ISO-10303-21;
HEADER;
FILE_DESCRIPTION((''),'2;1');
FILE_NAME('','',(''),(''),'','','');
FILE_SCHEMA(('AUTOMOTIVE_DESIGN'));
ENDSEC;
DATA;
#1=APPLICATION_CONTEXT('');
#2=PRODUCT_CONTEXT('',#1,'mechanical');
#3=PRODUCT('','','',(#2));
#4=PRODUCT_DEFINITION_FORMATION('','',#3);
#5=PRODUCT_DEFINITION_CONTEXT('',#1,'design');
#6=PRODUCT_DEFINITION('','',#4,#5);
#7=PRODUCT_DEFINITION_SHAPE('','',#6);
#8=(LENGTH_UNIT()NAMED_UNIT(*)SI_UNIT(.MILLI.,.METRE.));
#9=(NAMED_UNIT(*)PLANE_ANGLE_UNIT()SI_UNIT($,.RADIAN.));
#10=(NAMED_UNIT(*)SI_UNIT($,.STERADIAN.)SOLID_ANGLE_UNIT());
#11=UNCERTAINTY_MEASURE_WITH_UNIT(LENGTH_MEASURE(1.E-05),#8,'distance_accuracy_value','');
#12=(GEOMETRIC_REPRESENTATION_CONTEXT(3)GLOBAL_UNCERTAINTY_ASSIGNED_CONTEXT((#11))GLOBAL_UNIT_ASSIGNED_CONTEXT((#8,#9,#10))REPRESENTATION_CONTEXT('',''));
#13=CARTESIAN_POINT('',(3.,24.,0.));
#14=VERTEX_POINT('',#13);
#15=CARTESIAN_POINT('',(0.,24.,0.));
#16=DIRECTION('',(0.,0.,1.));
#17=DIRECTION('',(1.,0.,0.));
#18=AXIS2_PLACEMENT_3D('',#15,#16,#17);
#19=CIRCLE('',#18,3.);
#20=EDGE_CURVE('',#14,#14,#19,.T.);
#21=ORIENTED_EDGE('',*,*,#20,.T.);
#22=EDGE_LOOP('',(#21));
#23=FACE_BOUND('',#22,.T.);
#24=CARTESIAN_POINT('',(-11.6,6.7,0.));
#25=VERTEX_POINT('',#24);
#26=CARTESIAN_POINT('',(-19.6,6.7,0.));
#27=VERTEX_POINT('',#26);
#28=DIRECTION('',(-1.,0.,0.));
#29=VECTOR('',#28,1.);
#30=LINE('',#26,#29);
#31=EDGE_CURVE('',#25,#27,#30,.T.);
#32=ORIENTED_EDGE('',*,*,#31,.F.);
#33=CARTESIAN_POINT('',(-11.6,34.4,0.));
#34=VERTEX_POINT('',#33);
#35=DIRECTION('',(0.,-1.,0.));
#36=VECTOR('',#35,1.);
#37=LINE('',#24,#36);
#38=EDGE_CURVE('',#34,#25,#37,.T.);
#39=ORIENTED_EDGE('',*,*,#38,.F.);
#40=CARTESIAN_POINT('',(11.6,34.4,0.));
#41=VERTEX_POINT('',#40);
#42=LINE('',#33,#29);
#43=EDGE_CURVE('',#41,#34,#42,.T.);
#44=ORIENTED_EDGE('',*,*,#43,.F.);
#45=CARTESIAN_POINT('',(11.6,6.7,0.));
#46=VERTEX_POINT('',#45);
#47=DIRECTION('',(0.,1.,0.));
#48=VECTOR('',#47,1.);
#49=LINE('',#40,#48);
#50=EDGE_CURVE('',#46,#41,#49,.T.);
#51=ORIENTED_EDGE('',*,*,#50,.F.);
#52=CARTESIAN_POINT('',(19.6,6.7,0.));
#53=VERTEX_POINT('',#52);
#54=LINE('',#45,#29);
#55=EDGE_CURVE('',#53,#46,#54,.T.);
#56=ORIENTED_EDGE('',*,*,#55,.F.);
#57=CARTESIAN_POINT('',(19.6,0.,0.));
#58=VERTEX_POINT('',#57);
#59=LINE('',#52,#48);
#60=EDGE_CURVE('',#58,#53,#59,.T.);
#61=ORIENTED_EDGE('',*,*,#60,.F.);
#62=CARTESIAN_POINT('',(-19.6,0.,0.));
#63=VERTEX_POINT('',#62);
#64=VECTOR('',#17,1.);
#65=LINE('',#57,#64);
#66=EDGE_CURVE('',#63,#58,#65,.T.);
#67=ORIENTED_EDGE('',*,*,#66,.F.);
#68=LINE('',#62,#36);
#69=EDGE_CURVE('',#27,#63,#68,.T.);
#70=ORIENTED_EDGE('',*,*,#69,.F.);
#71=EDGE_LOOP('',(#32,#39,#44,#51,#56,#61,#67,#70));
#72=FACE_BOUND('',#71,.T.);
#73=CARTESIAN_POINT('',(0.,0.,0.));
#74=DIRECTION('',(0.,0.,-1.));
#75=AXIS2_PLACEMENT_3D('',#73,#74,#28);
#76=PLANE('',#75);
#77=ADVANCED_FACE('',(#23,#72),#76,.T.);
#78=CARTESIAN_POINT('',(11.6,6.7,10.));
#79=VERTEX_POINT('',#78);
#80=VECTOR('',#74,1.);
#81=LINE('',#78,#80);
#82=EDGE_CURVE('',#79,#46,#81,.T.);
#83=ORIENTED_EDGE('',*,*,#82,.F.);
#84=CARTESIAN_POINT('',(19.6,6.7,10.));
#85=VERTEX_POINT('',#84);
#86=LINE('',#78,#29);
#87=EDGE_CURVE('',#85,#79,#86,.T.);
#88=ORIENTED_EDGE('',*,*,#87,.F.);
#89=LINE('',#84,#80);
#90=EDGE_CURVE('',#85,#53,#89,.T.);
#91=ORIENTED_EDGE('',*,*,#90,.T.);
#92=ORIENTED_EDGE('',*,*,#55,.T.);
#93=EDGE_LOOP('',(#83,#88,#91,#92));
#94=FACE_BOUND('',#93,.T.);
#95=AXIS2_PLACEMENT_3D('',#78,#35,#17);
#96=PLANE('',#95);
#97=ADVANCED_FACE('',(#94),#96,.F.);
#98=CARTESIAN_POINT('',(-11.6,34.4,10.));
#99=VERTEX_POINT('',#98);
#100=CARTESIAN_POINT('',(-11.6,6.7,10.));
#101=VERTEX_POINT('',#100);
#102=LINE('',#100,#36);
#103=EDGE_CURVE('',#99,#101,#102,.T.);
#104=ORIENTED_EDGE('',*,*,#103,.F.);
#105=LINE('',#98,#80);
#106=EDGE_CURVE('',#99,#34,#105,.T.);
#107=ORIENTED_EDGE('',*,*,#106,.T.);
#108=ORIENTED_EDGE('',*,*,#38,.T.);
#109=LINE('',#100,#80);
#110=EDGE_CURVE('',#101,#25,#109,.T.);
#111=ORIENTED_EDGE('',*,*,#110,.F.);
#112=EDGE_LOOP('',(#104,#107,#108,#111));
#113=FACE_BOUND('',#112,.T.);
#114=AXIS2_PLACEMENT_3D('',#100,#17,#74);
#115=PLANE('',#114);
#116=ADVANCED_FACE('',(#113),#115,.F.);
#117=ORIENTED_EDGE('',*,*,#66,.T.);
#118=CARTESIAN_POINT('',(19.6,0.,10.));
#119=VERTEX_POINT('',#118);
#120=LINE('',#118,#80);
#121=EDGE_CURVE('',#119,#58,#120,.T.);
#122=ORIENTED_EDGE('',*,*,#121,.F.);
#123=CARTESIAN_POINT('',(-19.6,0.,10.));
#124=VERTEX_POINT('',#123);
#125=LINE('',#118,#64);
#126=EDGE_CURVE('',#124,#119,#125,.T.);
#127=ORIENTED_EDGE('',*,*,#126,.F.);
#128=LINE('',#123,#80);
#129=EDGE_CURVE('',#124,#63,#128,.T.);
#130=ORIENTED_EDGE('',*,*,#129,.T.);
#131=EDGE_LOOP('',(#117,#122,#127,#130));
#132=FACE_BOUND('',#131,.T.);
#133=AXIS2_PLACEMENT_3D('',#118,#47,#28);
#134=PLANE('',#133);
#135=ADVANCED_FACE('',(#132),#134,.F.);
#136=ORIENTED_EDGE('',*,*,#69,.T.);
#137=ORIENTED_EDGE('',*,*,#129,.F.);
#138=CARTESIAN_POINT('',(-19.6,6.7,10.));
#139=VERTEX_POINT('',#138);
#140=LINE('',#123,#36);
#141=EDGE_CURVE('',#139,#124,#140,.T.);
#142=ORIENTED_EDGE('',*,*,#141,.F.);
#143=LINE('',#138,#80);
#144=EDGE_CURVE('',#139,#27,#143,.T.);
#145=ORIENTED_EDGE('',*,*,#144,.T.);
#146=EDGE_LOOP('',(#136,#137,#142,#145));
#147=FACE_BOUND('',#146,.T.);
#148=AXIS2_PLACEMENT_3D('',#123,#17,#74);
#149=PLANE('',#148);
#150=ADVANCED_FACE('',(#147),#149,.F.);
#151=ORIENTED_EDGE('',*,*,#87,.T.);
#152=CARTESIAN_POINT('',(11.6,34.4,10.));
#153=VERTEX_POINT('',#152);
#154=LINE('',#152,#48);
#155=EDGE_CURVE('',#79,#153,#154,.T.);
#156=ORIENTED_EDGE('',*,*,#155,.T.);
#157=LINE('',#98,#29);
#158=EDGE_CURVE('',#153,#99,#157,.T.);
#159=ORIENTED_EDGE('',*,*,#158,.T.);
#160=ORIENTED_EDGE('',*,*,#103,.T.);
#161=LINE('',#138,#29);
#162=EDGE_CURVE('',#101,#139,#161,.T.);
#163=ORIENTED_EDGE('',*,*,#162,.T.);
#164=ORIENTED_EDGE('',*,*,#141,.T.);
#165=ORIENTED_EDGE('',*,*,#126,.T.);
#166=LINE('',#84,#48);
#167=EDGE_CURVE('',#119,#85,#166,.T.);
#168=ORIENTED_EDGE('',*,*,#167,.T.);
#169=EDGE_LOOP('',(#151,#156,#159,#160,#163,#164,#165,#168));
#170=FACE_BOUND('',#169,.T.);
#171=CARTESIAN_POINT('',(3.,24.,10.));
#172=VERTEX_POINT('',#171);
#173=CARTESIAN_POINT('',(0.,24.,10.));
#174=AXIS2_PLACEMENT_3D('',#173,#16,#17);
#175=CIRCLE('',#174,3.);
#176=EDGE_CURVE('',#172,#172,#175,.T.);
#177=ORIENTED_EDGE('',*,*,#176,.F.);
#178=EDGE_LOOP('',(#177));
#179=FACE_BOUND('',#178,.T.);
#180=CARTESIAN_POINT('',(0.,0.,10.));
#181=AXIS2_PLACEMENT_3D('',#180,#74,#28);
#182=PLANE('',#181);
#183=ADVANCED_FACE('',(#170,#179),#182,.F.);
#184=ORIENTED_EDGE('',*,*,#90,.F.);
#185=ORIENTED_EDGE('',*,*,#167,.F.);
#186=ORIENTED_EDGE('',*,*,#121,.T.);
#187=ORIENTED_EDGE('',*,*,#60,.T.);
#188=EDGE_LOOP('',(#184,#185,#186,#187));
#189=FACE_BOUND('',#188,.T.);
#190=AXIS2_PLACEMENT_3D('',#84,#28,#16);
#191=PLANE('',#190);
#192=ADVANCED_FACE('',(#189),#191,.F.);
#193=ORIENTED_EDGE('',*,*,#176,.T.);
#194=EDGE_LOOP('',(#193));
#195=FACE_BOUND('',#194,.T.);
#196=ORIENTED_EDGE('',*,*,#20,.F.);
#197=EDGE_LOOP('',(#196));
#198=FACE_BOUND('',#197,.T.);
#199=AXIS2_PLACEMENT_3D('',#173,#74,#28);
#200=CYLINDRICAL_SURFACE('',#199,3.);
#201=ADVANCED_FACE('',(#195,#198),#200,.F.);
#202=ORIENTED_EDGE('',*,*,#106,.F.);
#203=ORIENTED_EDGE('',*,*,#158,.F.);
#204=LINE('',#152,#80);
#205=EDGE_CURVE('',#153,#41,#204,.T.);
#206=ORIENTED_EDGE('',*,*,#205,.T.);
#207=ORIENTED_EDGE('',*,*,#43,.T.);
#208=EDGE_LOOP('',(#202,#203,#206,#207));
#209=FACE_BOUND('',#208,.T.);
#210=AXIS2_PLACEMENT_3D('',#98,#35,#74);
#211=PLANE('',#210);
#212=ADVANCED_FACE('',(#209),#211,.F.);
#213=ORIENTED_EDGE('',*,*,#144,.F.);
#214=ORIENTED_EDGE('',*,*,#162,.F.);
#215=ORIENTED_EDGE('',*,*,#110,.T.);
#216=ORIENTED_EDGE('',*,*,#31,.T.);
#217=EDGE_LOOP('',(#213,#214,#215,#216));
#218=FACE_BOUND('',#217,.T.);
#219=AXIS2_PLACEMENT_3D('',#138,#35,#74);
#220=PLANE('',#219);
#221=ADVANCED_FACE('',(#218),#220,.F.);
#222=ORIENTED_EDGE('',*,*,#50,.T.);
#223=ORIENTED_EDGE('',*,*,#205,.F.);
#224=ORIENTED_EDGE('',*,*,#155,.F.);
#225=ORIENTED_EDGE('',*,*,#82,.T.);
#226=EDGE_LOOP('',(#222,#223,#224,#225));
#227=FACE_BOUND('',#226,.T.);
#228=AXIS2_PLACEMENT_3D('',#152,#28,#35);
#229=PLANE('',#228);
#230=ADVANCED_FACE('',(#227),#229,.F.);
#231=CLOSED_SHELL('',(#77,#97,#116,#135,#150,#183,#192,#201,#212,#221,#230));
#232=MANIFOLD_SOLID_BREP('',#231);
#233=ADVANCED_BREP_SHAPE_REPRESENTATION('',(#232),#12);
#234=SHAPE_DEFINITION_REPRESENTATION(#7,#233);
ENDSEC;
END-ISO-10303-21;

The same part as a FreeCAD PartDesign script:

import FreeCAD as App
import Part
import Sketcher
from FreeCAD import Vector
Q = App.Units.Quantity

doc = App.newDocument("Part")
body = doc.addObject("PartDesign::Body", "Body")

# Sketch on XY plane
sketch1 = doc.addObject("Sketcher::SketchObject", "Sketch")
body.addObject(sketch1)
sketch1.AttachmentSupport = (doc.XY_Plane, [""])
sketch1.MapMode = "FlatFace"
sketch1.addGeometry(Part.LineSegment(Vector(-19.6, 6.7, 0), Vector(-19.6, 0, 0)), False)
sketch1.addGeometry(Part.LineSegment(Vector(-19.6, 0, 0), Vector(19.6, 0, 0)), False)
sketch1.addGeometry(Part.LineSegment(Vector(19.6, 0, 0), Vector(19.6, 6.7, 0)), False)
sketch1.addGeometry(Part.LineSegment(Vector(19.6, 6.7, 0), Vector(11.6, 6.7, 0)), False)
sketch1.addGeometry(Part.LineSegment(Vector(11.6, 6.7, 0), Vector(11.6, 34.4, 0)), False)
sketch1.addGeometry(Part.LineSegment(Vector(11.6, 34.4, 0), Vector(-11.6, 34.4, 0)), False)
sketch1.addGeometry(Part.LineSegment(Vector(-11.6, 34.4, 0), Vector(-11.6, 6.7, 0)), False)
sketch1.addGeometry(Part.LineSegment(Vector(-11.6, 6.7, 0), Vector(-19.6, 6.7, 0)), False)
sketch1.addGeometry(Part.Circle(Vector(0, 24, 0), Vector(0, 0, 1), 3), False)
sketch1.addConstraint(Sketcher.Constraint("Coincident", 0, 2, 1, 1))
sketch1.addConstraint(Sketcher.Constraint("Coincident", 1, 2, 2, 1))
sketch1.addConstraint(Sketcher.Constraint("Coincident", 2, 2, 3, 1))
sketch1.addConstraint(Sketcher.Constraint("Coincident", 3, 2, 4, 1))
sketch1.addConstraint(Sketcher.Constraint("Coincident", 4, 2, 5, 1))
sketch1.addConstraint(Sketcher.Constraint("Coincident", 5, 2, 6, 1))
sketch1.addConstraint(Sketcher.Constraint("Coincident", 6, 2, 7, 1))
sketch1.addConstraint(Sketcher.Constraint("Coincident", 7, 2, 0, 1))
sketch1.addConstraint(Sketcher.Constraint("Vertical", 0))
sketch1.addConstraint(Sketcher.Constraint("Horizontal", 1))
sketch1.addConstraint(Sketcher.Constraint("Vertical", 2))
sketch1.addConstraint(Sketcher.Constraint("Horizontal", 3))
sketch1.addConstraint(Sketcher.Constraint("Vertical", 4))
sketch1.addConstraint(Sketcher.Constraint("Horizontal", 5))
sketch1.addConstraint(Sketcher.Constraint("Vertical", 6))
sketch1.addConstraint(Sketcher.Constraint("Horizontal", 7))
sketch1.addConstraint(Sketcher.Constraint("Symmetric", 0, 2, 1, 2, -1, 1))
sketch1.addConstraint(Sketcher.Constraint("Symmetric", 3, 2, 6, 2, -2))
sketch1.addConstraint(Sketcher.Constraint("PointOnObject", 8, 3, -2))
sketch1.addConstraint(Sketcher.Constraint("Diameter", 8, Q("6 mm")))
sketch1.addConstraint(Sketcher.Constraint("DistanceX", 3, 2, 3, 1, Q("8 mm")))
sketch1.addConstraint(Sketcher.Constraint("DistanceX", 1, 1, 1, 2, Q("39.2 mm")))
sketch1.addConstraint(Sketcher.Constraint("DistanceY", 0, 2, 0, 1, Q("6.7 mm")))
sketch1.addConstraint(Sketcher.Constraint("DistanceY", 4, 1, 4, 2, Q("27.7 mm")))
sketch1.addConstraint(Sketcher.Constraint("DistanceY", -1, 1, 8, 3, Q("24 mm")))
pad1 = doc.addObject("PartDesign::Pad", "Pad")
body.addObject(pad1)
pad1.Profile = sketch1
pad1.Length = 10

doc.recompute()
